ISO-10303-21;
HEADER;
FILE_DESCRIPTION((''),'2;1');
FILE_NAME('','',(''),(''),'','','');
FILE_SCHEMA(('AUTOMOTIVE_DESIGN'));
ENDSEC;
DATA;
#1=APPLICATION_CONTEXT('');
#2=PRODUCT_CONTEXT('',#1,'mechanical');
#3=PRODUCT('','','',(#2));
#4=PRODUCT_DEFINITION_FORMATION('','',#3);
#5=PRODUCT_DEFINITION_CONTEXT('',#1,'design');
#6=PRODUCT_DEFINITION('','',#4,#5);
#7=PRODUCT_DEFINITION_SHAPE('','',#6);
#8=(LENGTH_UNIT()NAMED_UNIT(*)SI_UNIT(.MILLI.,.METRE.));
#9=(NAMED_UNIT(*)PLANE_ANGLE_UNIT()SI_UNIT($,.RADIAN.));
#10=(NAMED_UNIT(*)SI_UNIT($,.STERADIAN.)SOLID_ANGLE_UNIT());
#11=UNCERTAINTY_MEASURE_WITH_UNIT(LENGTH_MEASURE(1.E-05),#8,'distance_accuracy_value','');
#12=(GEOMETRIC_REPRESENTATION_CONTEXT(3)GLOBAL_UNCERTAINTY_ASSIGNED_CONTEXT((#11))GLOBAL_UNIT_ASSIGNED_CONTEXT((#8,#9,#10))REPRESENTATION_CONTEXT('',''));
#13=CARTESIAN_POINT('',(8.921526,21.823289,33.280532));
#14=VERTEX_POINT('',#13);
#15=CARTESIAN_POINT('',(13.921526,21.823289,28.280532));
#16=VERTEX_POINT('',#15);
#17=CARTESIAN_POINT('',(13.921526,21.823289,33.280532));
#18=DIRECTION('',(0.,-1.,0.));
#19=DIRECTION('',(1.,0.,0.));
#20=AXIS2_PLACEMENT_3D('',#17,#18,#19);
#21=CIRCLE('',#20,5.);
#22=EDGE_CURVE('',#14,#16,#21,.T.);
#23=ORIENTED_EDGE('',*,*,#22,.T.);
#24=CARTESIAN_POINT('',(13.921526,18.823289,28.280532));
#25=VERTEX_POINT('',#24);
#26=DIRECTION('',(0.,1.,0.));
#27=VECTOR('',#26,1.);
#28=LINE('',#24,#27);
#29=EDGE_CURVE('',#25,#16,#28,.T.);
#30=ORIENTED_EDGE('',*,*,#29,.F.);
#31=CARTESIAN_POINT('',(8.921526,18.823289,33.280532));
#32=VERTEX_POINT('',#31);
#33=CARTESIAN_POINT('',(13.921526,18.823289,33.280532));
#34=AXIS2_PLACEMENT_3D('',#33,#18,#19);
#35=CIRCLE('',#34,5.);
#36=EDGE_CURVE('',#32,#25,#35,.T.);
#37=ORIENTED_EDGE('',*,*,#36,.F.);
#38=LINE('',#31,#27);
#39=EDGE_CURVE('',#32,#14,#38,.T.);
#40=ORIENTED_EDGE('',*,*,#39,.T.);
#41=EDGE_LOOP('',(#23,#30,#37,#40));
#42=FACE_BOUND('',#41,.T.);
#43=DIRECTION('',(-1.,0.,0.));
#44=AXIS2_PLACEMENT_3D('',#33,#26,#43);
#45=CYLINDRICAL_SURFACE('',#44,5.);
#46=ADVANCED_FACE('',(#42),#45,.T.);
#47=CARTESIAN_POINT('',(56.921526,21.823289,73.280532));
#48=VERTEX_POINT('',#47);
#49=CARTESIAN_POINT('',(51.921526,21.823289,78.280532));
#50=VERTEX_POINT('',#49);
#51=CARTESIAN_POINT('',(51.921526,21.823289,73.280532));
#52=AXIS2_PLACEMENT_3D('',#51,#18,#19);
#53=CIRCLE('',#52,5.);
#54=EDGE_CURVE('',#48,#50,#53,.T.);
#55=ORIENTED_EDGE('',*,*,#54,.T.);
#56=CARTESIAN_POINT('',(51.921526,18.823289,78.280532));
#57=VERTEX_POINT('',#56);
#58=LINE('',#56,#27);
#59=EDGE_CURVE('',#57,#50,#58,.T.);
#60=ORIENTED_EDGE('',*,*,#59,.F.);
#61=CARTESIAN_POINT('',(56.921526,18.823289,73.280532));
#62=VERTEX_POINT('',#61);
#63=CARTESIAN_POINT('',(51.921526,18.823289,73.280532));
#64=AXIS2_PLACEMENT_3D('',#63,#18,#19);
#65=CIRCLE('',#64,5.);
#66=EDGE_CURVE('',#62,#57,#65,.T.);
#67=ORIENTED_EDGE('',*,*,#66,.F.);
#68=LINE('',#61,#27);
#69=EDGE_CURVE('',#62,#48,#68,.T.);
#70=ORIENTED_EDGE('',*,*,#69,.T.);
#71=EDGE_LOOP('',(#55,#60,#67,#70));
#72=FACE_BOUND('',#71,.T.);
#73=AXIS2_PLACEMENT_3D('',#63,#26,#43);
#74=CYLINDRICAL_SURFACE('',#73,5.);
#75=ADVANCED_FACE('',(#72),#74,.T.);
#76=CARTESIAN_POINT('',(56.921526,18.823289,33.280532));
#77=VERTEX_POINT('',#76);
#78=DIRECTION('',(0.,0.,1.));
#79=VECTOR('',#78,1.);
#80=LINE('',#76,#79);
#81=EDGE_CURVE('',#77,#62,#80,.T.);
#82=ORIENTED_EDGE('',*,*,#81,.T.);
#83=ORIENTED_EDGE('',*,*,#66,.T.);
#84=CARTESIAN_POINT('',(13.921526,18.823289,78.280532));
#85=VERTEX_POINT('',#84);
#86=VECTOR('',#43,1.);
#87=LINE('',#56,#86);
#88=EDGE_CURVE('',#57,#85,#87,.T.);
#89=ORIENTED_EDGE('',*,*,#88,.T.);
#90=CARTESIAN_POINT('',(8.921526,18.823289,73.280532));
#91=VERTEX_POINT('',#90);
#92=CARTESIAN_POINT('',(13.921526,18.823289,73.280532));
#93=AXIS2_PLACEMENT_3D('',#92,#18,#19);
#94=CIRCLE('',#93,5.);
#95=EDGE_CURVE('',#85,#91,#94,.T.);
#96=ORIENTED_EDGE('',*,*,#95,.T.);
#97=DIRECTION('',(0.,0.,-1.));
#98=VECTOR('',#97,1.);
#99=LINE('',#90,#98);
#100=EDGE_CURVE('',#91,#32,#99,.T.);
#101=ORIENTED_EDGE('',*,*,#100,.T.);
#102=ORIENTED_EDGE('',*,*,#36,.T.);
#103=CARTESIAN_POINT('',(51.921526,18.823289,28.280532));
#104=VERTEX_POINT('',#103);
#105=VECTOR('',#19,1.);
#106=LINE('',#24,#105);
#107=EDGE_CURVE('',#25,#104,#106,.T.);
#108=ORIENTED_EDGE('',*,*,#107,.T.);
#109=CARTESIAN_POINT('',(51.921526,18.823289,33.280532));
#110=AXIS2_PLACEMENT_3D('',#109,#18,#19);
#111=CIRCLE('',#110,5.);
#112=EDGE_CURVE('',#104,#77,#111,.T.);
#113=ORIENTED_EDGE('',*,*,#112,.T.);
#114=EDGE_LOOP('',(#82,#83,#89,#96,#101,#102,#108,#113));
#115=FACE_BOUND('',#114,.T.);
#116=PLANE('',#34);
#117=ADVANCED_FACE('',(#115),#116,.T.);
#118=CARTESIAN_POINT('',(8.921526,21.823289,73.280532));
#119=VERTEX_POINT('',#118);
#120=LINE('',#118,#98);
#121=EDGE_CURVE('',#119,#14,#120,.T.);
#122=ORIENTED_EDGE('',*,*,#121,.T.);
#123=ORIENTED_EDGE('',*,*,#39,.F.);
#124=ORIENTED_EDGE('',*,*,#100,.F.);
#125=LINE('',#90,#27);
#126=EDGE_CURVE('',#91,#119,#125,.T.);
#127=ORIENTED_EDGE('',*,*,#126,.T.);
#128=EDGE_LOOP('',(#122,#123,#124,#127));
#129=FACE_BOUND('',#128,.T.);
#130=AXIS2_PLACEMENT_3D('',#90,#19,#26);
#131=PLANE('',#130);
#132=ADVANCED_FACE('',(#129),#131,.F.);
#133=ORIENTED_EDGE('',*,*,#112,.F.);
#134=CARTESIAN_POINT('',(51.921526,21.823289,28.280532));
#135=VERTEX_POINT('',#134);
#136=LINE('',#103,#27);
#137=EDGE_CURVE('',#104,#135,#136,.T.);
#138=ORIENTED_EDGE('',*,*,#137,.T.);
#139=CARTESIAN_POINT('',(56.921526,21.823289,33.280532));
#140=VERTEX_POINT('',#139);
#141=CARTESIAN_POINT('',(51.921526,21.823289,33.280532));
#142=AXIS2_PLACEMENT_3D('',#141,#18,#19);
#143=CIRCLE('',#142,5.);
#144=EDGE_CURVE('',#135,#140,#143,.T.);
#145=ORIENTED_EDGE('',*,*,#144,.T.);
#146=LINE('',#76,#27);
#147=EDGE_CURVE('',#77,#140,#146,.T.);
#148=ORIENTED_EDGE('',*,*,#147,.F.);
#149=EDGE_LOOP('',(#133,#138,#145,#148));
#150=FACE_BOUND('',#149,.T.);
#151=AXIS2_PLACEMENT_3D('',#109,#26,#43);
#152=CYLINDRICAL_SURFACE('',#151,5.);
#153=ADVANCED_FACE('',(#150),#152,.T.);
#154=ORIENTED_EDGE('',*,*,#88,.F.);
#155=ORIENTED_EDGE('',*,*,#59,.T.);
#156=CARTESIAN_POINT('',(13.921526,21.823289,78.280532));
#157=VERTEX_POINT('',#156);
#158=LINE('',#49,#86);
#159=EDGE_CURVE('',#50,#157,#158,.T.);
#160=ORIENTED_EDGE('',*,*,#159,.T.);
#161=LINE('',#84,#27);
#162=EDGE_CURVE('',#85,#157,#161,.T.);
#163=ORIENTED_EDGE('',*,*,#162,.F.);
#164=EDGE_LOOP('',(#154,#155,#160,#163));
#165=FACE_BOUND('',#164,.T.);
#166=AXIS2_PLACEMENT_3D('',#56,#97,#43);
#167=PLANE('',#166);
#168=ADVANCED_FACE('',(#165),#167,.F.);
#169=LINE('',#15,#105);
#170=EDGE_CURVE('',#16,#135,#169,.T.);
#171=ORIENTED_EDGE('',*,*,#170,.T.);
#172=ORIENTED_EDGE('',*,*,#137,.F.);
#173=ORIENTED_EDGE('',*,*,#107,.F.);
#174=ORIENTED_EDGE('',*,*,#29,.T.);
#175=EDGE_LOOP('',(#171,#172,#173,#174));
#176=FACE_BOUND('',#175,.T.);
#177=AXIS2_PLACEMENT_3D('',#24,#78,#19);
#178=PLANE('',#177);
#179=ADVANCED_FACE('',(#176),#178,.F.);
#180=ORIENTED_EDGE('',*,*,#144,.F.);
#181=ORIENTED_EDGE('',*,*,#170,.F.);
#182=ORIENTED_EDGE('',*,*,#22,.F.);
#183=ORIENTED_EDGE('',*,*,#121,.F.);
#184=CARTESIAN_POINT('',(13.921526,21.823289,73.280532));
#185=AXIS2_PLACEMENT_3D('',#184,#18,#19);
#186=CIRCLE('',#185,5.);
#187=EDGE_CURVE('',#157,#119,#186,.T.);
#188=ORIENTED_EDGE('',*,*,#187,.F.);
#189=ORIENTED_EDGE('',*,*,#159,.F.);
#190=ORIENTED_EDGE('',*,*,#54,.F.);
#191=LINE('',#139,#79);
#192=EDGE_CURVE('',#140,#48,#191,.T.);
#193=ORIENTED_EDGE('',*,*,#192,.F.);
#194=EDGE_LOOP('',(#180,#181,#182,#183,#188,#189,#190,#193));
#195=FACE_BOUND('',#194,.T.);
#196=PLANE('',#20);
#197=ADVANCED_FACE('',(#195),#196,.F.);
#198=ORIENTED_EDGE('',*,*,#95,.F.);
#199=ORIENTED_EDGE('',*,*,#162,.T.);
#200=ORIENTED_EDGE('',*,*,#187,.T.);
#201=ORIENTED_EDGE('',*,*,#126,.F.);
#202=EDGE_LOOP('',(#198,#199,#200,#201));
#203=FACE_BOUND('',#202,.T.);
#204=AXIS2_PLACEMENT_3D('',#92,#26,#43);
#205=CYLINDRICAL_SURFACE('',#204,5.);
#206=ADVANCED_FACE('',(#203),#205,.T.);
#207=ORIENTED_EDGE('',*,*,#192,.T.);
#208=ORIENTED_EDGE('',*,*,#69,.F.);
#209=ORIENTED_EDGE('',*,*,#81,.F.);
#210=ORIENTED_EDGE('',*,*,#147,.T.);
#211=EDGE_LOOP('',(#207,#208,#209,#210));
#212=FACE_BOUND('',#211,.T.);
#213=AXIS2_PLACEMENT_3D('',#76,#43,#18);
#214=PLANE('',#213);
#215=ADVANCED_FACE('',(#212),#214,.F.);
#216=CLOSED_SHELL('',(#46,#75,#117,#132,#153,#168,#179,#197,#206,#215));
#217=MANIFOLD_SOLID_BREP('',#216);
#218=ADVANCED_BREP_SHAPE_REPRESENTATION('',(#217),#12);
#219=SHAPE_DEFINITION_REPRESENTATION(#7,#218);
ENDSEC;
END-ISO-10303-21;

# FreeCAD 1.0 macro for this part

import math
import FreeCAD as App
import Part
import Sketcher

V = App.Vector

doc = App.newDocument("Part")
body = doc.addObject("PartDesign::Body", "Body")

# Sketch on XZ plane
sketch1 = doc.addObject("Sketcher::SketchObject", "Sketch")
body.addObject(sketch1)
sketch1.AttachmentSupport = (doc.XZ_Plane, [""])
sketch1.MapMode = "FlatFace"
sketch1.AttachmentOffset = App.Placement(V(0, 0, -21.823289), App.Rotation())
sketch1.addGeometry(Part.LineSegment(V(13.921526, 28.280532, 0), V(51.921526, 28.280532, 0)), False)
sketch1.addGeometry(Part.ArcOfCircle(Part.Circle(V(51.921526, 33.280532, 0), V(0, 0, 1), 5), math.radians(-90), math.radians(0)), False)
sketch1.addGeometry(Part.LineSegment(V(56.921526, 33.280532, 0), V(56.921526, 73.280532, 0)), False)
sketch1.addGeometry(Part.ArcOfCircle(Part.Circle(V(51.921526, 73.280532, 0), V(0, 0, 1), 5), math.radians(0), math.radians(90)), False)
sketch1.addGeometry(Part.LineSegment(V(51.921526, 78.280532, 0), V(13.921526, 78.280532, 0)), False)
sketch1.addGeometry(Part.ArcOfCircle(Part.Circle(V(13.921526, 73.280532, 0), V(0, 0, 1), 5), math.radians(90), math.radians(180)), False)
sketch1.addGeometry(Part.LineSegment(V(8.921526, 73.280532, 0), V(8.921526, 33.280532, 0)), False)
sketch1.addGeometry(Part.ArcOfCircle(Part.Circle(V(13.921526, 33.280532, 0), V(0, 0, 1), 5), math.radians(180), math.radians(270)), False)
sketch1.addConstraint(Sketcher.Constraint("Tangent", 0, 2, 1, 1))
sketch1.addConstraint(Sketcher.Constraint("Tangent", 1, 2, 2, 1))
sketch1.addConstraint(Sketcher.Constraint("Tangent", 2, 2, 3, 1))
sketch1.addConstraint(Sketcher.Constraint("Tangent", 3, 2, 4, 1))
sketch1.addConstraint(Sketcher.Constraint("Tangent", 4, 2, 5, 1))
sketch1.addConstraint(Sketcher.Constraint("Tangent", 5, 2, 6, 1))
sketch1.addConstraint(Sketcher.Constraint("Tangent", 6, 2, 7, 1))
sketch1.addConstraint(Sketcher.Constraint("Tangent", 7, 2, 0, 1))
sketch1.addConstraint(Sketcher.Constraint("Horizontal", 0))
sketch1.addConstraint(Sketcher.Constraint("Vertical", 2))
sketch1.addConstraint(Sketcher.Constraint("Horizontal", 4))
sketch1.addConstraint(Sketcher.Constraint("Vertical", 6))
sketch1.addConstraint(Sketcher.Constraint("Equal", 1, 3))
sketch1.addConstraint(Sketcher.Constraint("Equal", 3, 5))
sketch1.addConstraint(Sketcher.Constraint("Equal", 5, 7))
sketch1.addConstraint(Sketcher.Constraint("Radius", 1, 5.0))
sketch1.addConstraint(Sketcher.Constraint("DistanceX", 0, 1, 0, 2, 38.0))
sketch1.addConstraint(Sketcher.Constraint("DistanceY", 2, 1, 2, 2, 40.0))
sketch1.addConstraint(Sketcher.Constraint("DistanceY", -1, 1, 1, 3, 33.280532))
sketch1.addConstraint(Sketcher.Constraint("DistanceX", -1, 1, 1, 3, 51.921526))
pad1 = doc.addObject("PartDesign::Pad", "Pad")
body.addObject(pad1)
pad1.Profile = sketch1
pad1.Length = 3

doc.recompute()
